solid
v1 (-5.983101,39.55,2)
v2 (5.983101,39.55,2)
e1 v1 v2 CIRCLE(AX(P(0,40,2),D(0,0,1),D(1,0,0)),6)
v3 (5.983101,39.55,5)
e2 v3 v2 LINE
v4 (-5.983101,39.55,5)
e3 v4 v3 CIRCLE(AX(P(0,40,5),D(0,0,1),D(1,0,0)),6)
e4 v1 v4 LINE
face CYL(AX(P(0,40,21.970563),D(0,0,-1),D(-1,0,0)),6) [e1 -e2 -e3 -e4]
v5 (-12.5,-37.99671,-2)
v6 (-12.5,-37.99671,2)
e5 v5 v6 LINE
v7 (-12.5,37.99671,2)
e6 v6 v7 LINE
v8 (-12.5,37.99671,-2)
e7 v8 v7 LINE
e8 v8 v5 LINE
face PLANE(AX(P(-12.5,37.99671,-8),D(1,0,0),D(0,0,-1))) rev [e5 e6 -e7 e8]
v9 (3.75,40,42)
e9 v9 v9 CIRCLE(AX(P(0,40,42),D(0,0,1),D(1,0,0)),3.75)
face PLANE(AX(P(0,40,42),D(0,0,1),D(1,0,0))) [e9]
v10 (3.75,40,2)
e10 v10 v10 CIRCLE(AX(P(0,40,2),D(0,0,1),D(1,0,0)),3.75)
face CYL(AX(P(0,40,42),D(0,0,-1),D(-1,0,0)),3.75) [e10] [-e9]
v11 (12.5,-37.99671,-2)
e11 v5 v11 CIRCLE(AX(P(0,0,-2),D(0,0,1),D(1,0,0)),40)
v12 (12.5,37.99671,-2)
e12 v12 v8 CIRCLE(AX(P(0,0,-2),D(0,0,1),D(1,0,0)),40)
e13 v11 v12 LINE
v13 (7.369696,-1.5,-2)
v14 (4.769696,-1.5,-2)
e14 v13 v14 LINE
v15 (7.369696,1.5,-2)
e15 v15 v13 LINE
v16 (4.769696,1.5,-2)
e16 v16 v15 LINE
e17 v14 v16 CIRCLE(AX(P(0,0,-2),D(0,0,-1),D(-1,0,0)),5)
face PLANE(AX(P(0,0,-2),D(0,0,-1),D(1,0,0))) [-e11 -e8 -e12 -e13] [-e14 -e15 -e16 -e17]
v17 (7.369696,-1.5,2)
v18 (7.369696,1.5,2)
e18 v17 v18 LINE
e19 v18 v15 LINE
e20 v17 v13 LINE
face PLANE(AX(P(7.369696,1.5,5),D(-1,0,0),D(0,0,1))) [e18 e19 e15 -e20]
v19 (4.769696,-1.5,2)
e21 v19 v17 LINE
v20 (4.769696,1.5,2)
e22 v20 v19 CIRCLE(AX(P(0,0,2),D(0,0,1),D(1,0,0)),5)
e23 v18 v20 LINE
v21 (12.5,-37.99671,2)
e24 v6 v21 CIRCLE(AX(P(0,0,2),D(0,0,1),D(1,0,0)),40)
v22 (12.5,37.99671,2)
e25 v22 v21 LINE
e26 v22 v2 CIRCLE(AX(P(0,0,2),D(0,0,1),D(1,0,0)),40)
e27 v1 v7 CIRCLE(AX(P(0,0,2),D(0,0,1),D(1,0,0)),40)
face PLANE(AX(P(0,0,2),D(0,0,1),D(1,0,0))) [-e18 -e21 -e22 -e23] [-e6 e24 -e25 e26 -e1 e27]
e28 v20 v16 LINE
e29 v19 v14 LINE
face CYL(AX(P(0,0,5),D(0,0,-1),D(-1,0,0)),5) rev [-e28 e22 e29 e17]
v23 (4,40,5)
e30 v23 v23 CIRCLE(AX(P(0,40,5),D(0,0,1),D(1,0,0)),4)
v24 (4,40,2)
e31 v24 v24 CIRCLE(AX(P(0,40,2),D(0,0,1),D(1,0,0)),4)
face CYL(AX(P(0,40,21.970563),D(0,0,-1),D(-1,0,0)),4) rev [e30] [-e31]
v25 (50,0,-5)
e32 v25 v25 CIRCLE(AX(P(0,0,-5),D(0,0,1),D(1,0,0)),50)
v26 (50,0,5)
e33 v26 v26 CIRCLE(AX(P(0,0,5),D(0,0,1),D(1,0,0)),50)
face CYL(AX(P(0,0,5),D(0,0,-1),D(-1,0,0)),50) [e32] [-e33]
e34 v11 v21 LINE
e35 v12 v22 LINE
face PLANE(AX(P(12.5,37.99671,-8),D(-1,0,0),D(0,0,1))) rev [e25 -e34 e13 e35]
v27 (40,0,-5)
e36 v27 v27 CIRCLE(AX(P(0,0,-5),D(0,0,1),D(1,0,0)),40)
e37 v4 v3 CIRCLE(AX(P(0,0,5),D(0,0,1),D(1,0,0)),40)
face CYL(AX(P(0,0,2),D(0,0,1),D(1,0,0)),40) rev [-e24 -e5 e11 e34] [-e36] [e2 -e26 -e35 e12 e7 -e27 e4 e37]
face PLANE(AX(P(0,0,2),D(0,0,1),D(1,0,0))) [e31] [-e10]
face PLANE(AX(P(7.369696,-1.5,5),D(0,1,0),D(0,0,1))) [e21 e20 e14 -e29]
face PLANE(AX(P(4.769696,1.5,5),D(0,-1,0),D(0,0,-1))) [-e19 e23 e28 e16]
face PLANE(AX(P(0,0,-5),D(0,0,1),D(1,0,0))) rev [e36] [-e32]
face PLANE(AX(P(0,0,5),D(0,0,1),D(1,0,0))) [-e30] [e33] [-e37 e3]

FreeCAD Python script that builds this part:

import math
import FreeCAD as App
import Part
import Sketcher
Q = App.Units.Quantity

doc = App.newDocument("Part")
body = doc.addObject("PartDesign::Body", "Body")

sketch1 = doc.addObject("Sketcher::SketchObject", "Sketch")
body.addObject(sketch1)
sketch1.AttachmentSupport = (doc.XY_Plane, [""])
sketch1.MapMode = "FlatFace"
sketch1.addGeometry(Part.Circle(App.Vector(0, 0, 0), App.Vector(0, 0, 1), 50), False)
sketch1.addGeometry(Part.ArcOfCircle(Part.Circle(App.Vector(0, 0, 0), App.Vector(0, 0, 1), 5), math.radians(17.457603), math.radians(342.542397)), False)
sketch1.addGeometry(Part.LineSegment(App.Vector(4.769696, 1.5, 0), App.Vector(7.369696, 1.5, 0)), False)
sketch1.addGeometry(Part.LineSegment(App.Vector(7.369696, 1.5, 0), App.Vector(7.369696, -1.5, 0)), False)
sketch1.addGeometry(Part.LineSegment(App.Vector(7.369696, -1.5, 0), App.Vector(4.769696, -1.5, 0)), False)
sketch1.addConstraint(Sketcher.Constraint("Coincident", 1, 1, 2, 1))
sketch1.addConstraint(Sketcher.Constraint("Coincident", 2, 2, 3, 1))
sketch1.addConstraint(Sketcher.Constraint("Coincident", 3, 2, 4, 1))
sketch1.addConstraint(Sketcher.Constraint("Coincident", 4, 2, 1, 2))
sketch1.addConstraint(Sketcher.Constraint("Horizontal", 2))
sketch1.addConstraint(Sketcher.Constraint("Vertical", 3))
sketch1.addConstraint(Sketcher.Constraint("Horizontal", 4))
sketch1.addConstraint(Sketcher.Constraint("Coincident", 0, 3, -1, 1))
sketch1.addConstraint(Sketcher.Constraint("Coincident", 1, 3, -1, 1))
sketch1.addConstraint(Sketcher.Constraint("Vertical", 1, 1, 4, 2))
sketch1.addConstraint(Sketcher.Constraint("Diameter", 0, Q("100 mm")))
sketch1.addConstraint(Sketcher.Constraint("Radius", 1, Q("5 mm")))
sketch1.addConstraint(Sketcher.Constraint("DistanceY", 3, 2, 3, 1, Q("3 mm")))
sketch1.addConstraint(Sketcher.Constraint("DistanceX", 2, 1, 2, 2, Q("2.6 mm")))
pad1 = doc.addObject("PartDesign::Pad", "Pad")
body.addObject(pad1)
pad1.Profile = sketch1
pad1.Length = 10
pad1.Midplane = True

sketch2 = doc.addObject("Sketcher::SketchObject", "Sketch001")
body.addObject(sketch2)
sketch2.AttachmentSupport = (doc.XY_Plane, [""])
sketch2.MapMode = "FlatFace"
sketch2.AttachmentOffset = App.Placement(App.Vector(0, 0, 5), App.Rotation())
sketch2.addGeometry(Part.Circle(App.Vector(0, 0, 0), App.Vector(0, 0, 1), 40), False)
sketch2.addConstraint(Sketcher.Constraint("Coincident", 0, 3, -1, 1))
sketch2.addConstraint(Sketcher.Constraint("Diameter", 0, Q("80 mm")))
pocket1 = doc.addObject("PartDesign::Pocket", "Pocket")
body.addObject(pocket1)
pocket1.Profile = sketch2
pocket1.Length = 3
doc.recompute()

mirrored = doc.addObject("PartDesign::Mirrored", "Mirrored")
body.addObject(mirrored)
mirrored.Originals = [pocket1]
mirrored.MirrorPlane = (doc.XY_Plane, [""])
body.Tip = mirrored

sketch3 = doc.addObject("Sketcher::SketchObject", "Sketch002")
body.addObject(sketch3)
sketch3.AttachmentSupport = (doc.XY_Plane, [""])
sketch3.MapMode = "FlatFace"
sketch3.AttachmentOffset = App.Placement(App.Vector(0, 0, 2), App.Rotation())
sketch3.addGeometry(Part.LineSegment(App.Vector(-12.5, -37.99671, 0), App.Vector(-12.5, 37.99671, 0)), False)
sketch3.addGeometry(Part.ArcOfCircle(Part.Circle(App.Vector(0, 0, 0), App.Vector(0, 0, 1), 40), math.radians(108.209957), math.radians(251.790043)), False)
sketch3.addGeometry(Part.LineSegment(App.Vector(12.5, 37.99671, 0), App.Vector(12.5, -37.99671, 0)), False)
sketch3.addGeometry(Part.ArcOfCircle(Part.Circle(App.Vector(0, 0, 0), App.Vector(0, 0, 1), 40), math.radians(-71.790043), math.radians(71.790043)), False)
sketch3.addConstraint(Sketcher.Constraint("Coincident", 0, 1, 1, 2))
sketch3.addConstraint(Sketcher.Constraint("Coincident", 1, 1, 0, 2))
sketch3.addConstraint(Sketcher.Constraint("Coincident", 2, 1, 3, 2))
sketch3.addConstraint(Sketcher.Constraint("Coincident", 3, 1, 2, 2))
sketch3.addConstraint(Sketcher.Constraint("Vertical", 0))
sketch3.addConstraint(Sketcher.Constraint("Vertical", 2))
sketch3.addConstraint(Sketcher.Constraint("Coincident", 1, 3, -1, 1))
sketch3.addConstraint(Sketcher.Constraint("Coincident", 3, 3, -1, 1))
sketch3.addConstraint(Sketcher.Constraint("Equal", 1, 3))
sketch3.addConstraint(Sketcher.Constraint("Horizontal", 1, 1, 2, 1))
sketch3.addConstraint(Sketcher.Constraint("Radius", 1, Q("40 mm")))
sketch3.addConstraint(Sketcher.Constraint("DistanceX", 1, 1, 2, 1, Q("25 mm")))
pocket2 = doc.addObject("PartDesign::Pocket", "Pocket001")
body.addObject(pocket2)
pocket2.Profile = sketch3
pocket2.Length = 10

sketch4 = doc.addObject("Sketcher::SketchObject", "Sketch003")
body.addObject(sketch4)
sketch4.AttachmentSupport = (doc.XY_Plane, [""])
sketch4.MapMode = "FlatFace"
sketch4.AttachmentOffset = App.Placement(App.Vector(0, 0, 5), App.Rotation())
sketch4.addGeometry(Part.Circle(App.Vector(0, 40, 0), App.Vector(0, 0, 1), 4), False)
sketch4.addConstraint(Sketcher.Constraint("PointOnObject", 0, 3, -2))
sketch4.addConstraint(Sketcher.Constraint("Diameter", 0, Q("8 mm")))
sketch4.addConstraint(Sketcher.Constraint("DistanceY", -1, 1, 0, 3, Q("40 mm")))
pocket3 = doc.addObject("PartDesign::Pocket", "Pocket002")
body.addObject(pocket3)
pocket3.Profile = sketch4
pocket3.Length = 3
body2 = doc.addObject("PartDesign::Body", "Body001")

sketch5 = doc.addObject("Sketcher::SketchObject", "Sketch004")
body2.addObject(sketch5)
sketch5.AttachmentSupport = (doc.getObject("XY_Plane001"), [""])
sketch5.MapMode = "FlatFace"
sketch5.AttachmentOffset = App.Placement(App.Vector(0, 0, 2), App.Rotation())
sketch5.addGeometry(Part.Circle(App.Vector(0, 40, 0), App.Vector(0, 0, 1), 6), False)
sketch5.addGeometry(Part.Circle(App.Vector(0, 40, 0), App.Vector(0, 0, 1), 4), False)
sketch5.addConstraint(Sketcher.Constraint("Coincident", 1, 3, 0, 3))
sketch5.addConstraint(Sketcher.Constraint("PointOnObject", 0, 3, -2))
sketch5.addConstraint(Sketcher.Constraint("Diameter", 0, Q("12 mm")))
sketch5.addConstraint(Sketcher.Constraint("Diameter", 1, Q("8 mm")))
sketch5.addConstraint(Sketcher.Constraint("DistanceY", -1, 1, 0, 3, Q("40 mm")))
pad2 = doc.addObject("PartDesign::Pad", "Pad001")
body2.addObject(pad2)
pad2.Profile = sketch5
pad2.Length = 3
doc.recompute()

boolean = doc.addObject("PartDesign::Boolean", "Boolean")
body2.addObject(boolean)
boolean.Type = "Fuse"
boolean.addObjects([body])

sketch6 = doc.addObject("Sketcher::SketchObject", "Sketch005")
body2.addObject(sketch6)
sketch6.AttachmentSupport = (doc.getObject("XY_Plane001"), [""])
sketch6.MapMode = "FlatFace"
sketch6.AttachmentOffset = App.Placement(App.Vector(0, 0, 2), App.Rotation())
sketch6.addGeometry(Part.Circle(App.Vector(0, 40, 0), App.Vector(0, 0, 1), 3.75), False)
sketch6.addConstraint(Sketcher.Constraint("PointOnObject", 0, 3, -2))
sketch6.addConstraint(Sketcher.Constraint("Diameter", 0, Q("7.5 mm")))
sketch6.addConstraint(Sketcher.Constraint("DistanceY", -1, 1, 0, 3, Q("40 mm")))
pad3 = doc.addObject("PartDesign::Pad", "Pad002")
body2.addObject(pad3)
pad3.Profile = sketch6
pad3.Length = 40

doc.recompute()
